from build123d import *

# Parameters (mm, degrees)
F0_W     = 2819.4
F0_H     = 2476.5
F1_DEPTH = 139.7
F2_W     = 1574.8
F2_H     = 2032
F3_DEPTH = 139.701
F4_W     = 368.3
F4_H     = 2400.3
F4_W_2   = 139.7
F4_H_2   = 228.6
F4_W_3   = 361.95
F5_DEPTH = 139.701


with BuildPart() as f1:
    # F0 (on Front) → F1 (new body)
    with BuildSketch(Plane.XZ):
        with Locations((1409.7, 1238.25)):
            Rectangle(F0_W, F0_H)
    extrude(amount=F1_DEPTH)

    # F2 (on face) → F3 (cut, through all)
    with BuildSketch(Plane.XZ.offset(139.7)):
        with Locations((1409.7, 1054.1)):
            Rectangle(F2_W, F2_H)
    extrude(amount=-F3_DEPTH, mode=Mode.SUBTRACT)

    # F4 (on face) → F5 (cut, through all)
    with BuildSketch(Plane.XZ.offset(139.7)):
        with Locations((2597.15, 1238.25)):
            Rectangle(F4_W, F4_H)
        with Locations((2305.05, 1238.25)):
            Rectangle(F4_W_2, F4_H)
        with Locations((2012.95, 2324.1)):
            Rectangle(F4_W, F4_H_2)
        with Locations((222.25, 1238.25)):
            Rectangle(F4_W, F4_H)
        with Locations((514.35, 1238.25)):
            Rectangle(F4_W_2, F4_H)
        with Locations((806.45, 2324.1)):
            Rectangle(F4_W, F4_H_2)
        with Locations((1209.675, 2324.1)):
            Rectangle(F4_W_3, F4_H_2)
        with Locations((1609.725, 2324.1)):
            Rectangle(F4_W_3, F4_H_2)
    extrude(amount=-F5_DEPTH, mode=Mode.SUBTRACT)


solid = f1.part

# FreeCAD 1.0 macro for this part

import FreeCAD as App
import Part
import Sketcher
from FreeCAD import Vector
Q = App.Units.Quantity

doc = App.newDocument("Part")
body = doc.addObject("PartDesign::Body", "Body")

# Sketch on XZ plane
sketch1 = doc.addObject("Sketcher::SketchObject", "Sketch")
body.addObject(sketch1)
sketch1.AttachmentSupport = (doc.XZ_Plane, [""])
sketch1.MapMode = "FlatFace"
sketch1.addGeometry([
    Part.LineSegment(Vector(0, 2476, 0), Vector(0, 0, 0)),
    Part.LineSegment(Vector(0, 0, 0), Vector(2819, 0, 0)),
    Part.LineSegment(Vector(2819, 0, 0), Vector(2819, 2476, 0)),
    Part.LineSegment(Vector(2819, 2476, 0), Vector(0, 2476, 0)),
], False)
sketch1.addConstraint([
    Sketcher.Constraint("Coincident", 0, 2, 1, 1),
    Sketcher.Constraint("Coincident", 1, 2, 2, 1),
    Sketcher.Constraint("Coincident", 2, 2, 3, 1),
    Sketcher.Constraint("Coincident", 3, 2, 0, 1),
    Sketcher.Constraint("Vertical", 0),
    Sketcher.Constraint("Horizontal", 1),
    Sketcher.Constraint("Vertical", 2),
    Sketcher.Constraint("Horizontal", 3),
    Sketcher.Constraint("Coincident", 0, 2, -1, 1),
    Sketcher.Constraint("DistanceX", 1, 1, 1, 2, Q("111 in")),
    Sketcher.Constraint("DistanceY", 0, 2, 0, 1, Q("97.5 in")),
])
pad1 = doc.addObject("PartDesign::Pad", "Pad")
body.addObject(pad1)
pad1.Profile = sketch1
pad1.Length = Q("5.5 in")

# Sketch on XZ plane
sketch2 = doc.addObject("Sketcher::SketchObject", "Sketch001")
body.addObject(sketch2)
sketch2.AttachmentSupport = (doc.XZ_Plane, [""])
sketch2.MapMode = "FlatFace"
sketch2.AttachmentOffset = App.Placement(Vector(0, 0, 5.5 * 25.4), App.Rotation())
sketch2.addGeometry([
    Part.LineSegment(Vector(622, 2070, 0), Vector(622, 38, 0)),
    Part.LineSegment(Vector(622, 38, 0), Vector(2197, 38, 0)),
    Part.LineSegment(Vector(2197, 38, 0), Vector(2197, 2070, 0)),
    Part.LineSegment(Vector(2197, 2070, 0), Vector(622, 2070, 0)),
], False)
sketch2.addConstraint([
    Sketcher.Constraint("Coincident", 0, 2, 1, 1),
    Sketcher.Constraint("Coincident", 1, 2, 2, 1),
    Sketcher.Constraint("Coincident", 2, 2, 3, 1),
    Sketcher.Constraint("Coincident", 3, 2, 0, 1),
    Sketcher.Constraint("Vertical", 0),
    Sketcher.Constraint("Horizontal", 1),
    Sketcher.Constraint("Vertical", 2),
    Sketcher.Constraint("Horizontal", 3),
    Sketcher.Constraint("DistanceX", 1, 1, 1, 2, Q("62 in")),
    Sketcher.Constraint("DistanceY", 0, 2, 0, 1, Q("80 in")),
    Sketcher.Constraint("DistanceX", -1, 1, 0, 2, Q("24.5 in")),
    Sketcher.Constraint("DistanceY", -1, 1, 0, 2, Q("1.5 in")),
])
pocket1 = doc.addObject("PartDesign::Pocket", "Pocket")
body.addObject(pocket1)
pocket1.Profile = sketch2
pocket1.Type = "ThroughAll"

# Sketch on XZ plane
sketch3 = doc.addObject("Sketcher::SketchObject", "Sketch002")
body.addObject(sketch3)
sketch3.AttachmentSupport = (doc.XZ_Plane, [""])
sketch3.MapMode = "FlatFace"
sketch3.AttachmentOffset = App.Placement(Vector(0, 0, 5.5 * 25.4), App.Rotation())
sketch3.addGeometry([
    Part.LineSegment(Vector(2413, 2438, 0), Vector(2413, 38, 0)),  # 0
    Part.LineSegment(Vector(2413, 38, 0), Vector(2781, 38, 0)),  # 1
    Part.LineSegment(Vector(2781, 38, 0), Vector(2781, 2438, 0)),  # 2
    Part.LineSegment(Vector(2781, 2438, 0), Vector(2413, 2438, 0)),  # 3
    Part.LineSegment(Vector(2235, 2438, 0), Vector(2235, 38, 0)),  # 4
    Part.LineSegment(Vector(2235, 38, 0), Vector(2375, 38, 0)),  # 5
    Part.LineSegment(Vector(2375, 38, 0), Vector(2375, 2438, 0)),  # 6
    Part.LineSegment(Vector(2375, 2438, 0), Vector(2235, 2438, 0)),  # 7
    Part.LineSegment(Vector(1829, 2438, 0), Vector(1829, 2210, 0)),  # 8
    Part.LineSegment(Vector(1829, 2210, 0), Vector(2197, 2210, 0)),  # 9
    Part.LineSegment(Vector(2197, 2210, 0), Vector(2197, 2438, 0)),  # 10
    Part.LineSegment(Vector(2197, 2438, 0), Vector(1829, 2438, 0)),  # 11
    Part.LineSegment(Vector(38, 2438, 0), Vector(38, 38, 0)),  # 12
    Part.LineSegment(Vector(38, 38, 0), Vector(406, 38, 0)),  # 13
    Part.LineSegment(Vector(406, 38, 0), Vector(406, 2438, 0)),  # 14
    Part.LineSegment(Vector(406, 2438, 0), Vector(38, 2438, 0)),  # 15
    Part.LineSegment(Vector(444, 2438, 0), Vector(444, 38, 0)),  # 16
    Part.LineSegment(Vector(444, 38, 0), Vector(584, 38, 0)),  # 17
    Part.LineSegment(Vector(584, 38, 0), Vector(584, 2438, 0)),  # 18
    Part.LineSegment(Vector(584, 2438, 0), Vector(444, 2438, 0)),  # 19
    Part.LineSegment(Vector(622, 2438, 0), Vector(622, 2210, 0)),  # 20
    Part.LineSegment(Vector(622, 2210, 0), Vector(991, 2210, 0)),  # 21
    Part.LineSegment(Vector(991, 2210, 0), Vector(991, 2438, 0)),  # 22
    Part.LineSegment(Vector(991, 2438, 0), Vector(622, 2438, 0)),  # 23
    Part.LineSegment(Vector(1029, 2438, 0), Vector(1029, 2210, 0)),  # 24
    Part.LineSegment(Vector(1029, 2210, 0), Vector(1391, 2210, 0)),  # 25
    Part.LineSegment(Vector(1391, 2210, 0), Vector(1391, 2438, 0)),  # 26
    Part.LineSegment(Vector(1391, 2438, 0), Vector(1029, 2438, 0)),  # 27
    Part.LineSegment(Vector(1429, 2438, 0), Vector(1429, 2210, 0)),  # 28
    Part.LineSegment(Vector(1429, 2210, 0), Vector(1791, 2210, 0)),  # 29
    Part.LineSegment(Vector(1791, 2210, 0), Vector(1791, 2438, 0)),  # 30
    Part.LineSegment(Vector(1791, 2438, 0), Vector(1429, 2438, 0)),  # 31
], False)
sketch3.addConstraint([
    Sketcher.Constraint("Coincident", 0, 2, 1, 1),
    Sketcher.Constraint("Coincident", 1, 2, 2, 1),
    Sketcher.Constraint("Coincident", 2, 2, 3, 1),
    Sketcher.Constraint("Coincident", 3, 2, 0, 1),
    Sketcher.Constraint("Coincident", 4, 2, 5, 1),
    Sketcher.Constraint("Coincident", 5, 2, 6, 1),
    Sketcher.Constraint("Coincident", 6, 2, 7, 1),
    Sketcher.Constraint("Coincident", 7, 2, 4, 1),
    Sketcher.Constraint("Coincident", 8, 2, 9, 1),
    Sketcher.Constraint("Coincident", 9, 2, 10, 1),
    Sketcher.Constraint("Coincident", 10, 2, 11, 1),
    Sketcher.Constraint("Coincident", 11, 2, 8, 1),
    Sketcher.Constraint("Coincident", 12, 2, 13, 1),
    Sketcher.Constraint("Coincident", 13, 2, 14, 1),
    Sketcher.Constraint("Coincident", 14, 2, 15, 1),
    Sketcher.Constraint("Coincident", 15, 2, 12, 1),
    Sketcher.Constraint("Coincident", 16, 2, 17, 1),
    Sketcher.Constraint("Coincident", 17, 2, 18, 1),
    Sketcher.Constraint("Coincident", 18, 2, 19, 1),
    Sketcher.Constraint("Coincident", 19, 2, 16, 1),
    Sketcher.Constraint("Coincident", 20, 2, 21, 1),
    Sketcher.Constraint("Coincident", 21, 2, 22, 1),
    Sketcher.Constraint("Coincident", 22, 2, 23, 1),
    Sketcher.Constraint("Coincident", 23, 2, 20, 1),
    Sketcher.Constraint("Coincident", 24, 2, 25, 1),
    Sketcher.Constraint("Coincident", 25, 2, 26, 1),
    Sketcher.Constraint("Coincident", 26, 2, 27, 1),
    Sketcher.Constraint("Coincident", 27, 2, 24, 1),
    Sketcher.Constraint("Coincident", 28, 2, 29, 1),
    Sketcher.Constraint("Coincident", 29, 2, 30, 1),
    Sketcher.Constraint("Coincident", 30, 2, 31, 1),
    Sketcher.Constraint("Coincident", 31, 2, 28, 1),
    Sketcher.Constraint("Vertical", 0),
    Sketcher.Constraint("Horizontal", 1),
    Sketcher.Constraint("Vertical", 2),
    Sketcher.Constraint("Horizontal", 3),
    Sketcher.Constraint("Vertical", 4),
    Sketcher.Constraint("Horizontal", 5),
    Sketcher.Constraint("Vertical", 6),
    Sketcher.Constraint("Horizontal", 7),
    Sketcher.Constraint("Vertical", 8),
    Sketcher.Constraint("Horizontal", 9),
    Sketcher.Constraint("Vertical", 10),
    Sketcher.Constraint("Horizontal", 11),
    Sketcher.Constraint("Vertical", 12),
    Sketcher.Constraint("Horizontal", 13),
    Sketcher.Constraint("Vertical", 14),
    Sketcher.Constraint("Horizontal", 15),
    Sketcher.Constraint("Vertical", 16),
    Sketcher.Constraint("Horizontal", 17),
    Sketcher.Constraint("Vertical", 18),
    Sketcher.Constraint("Horizontal", 19),
    Sketcher.Constraint("Vertical", 20),
    Sketcher.Constraint("Horizontal", 21),
    Sketcher.Constraint("Vertical", 22),
    Sketcher.Constraint("Horizontal", 23),
    Sketcher.Constraint("Vertical", 24),
    Sketcher.Constraint("Horizontal", 25),
    Sketcher.Constraint("Vertical", 26),
    Sketcher.Constraint("Horizontal", 27),
    Sketcher.Constraint("Vertical", 28),
    Sketcher.Constraint("Horizontal", 29),
    Sketcher.Constraint("Vertical", 30),
    Sketcher.Constraint("Horizontal", 31),
    Sketcher.Constraint("Horizontal", 1, 2, 4, 2),
    Sketcher.Constraint("Horizontal", 3, 2, 6, 2),
    Sketcher.Constraint("Horizontal", 7, 2, 10, 2),
    Sketcher.Constraint("Horizontal", 5, 2, 12, 2),
    Sketcher.Constraint("Horizontal", 11, 2, 14, 2),
    Sketcher.Constraint("Horizontal", 13, 2, 16, 2),
    Sketcher.Constraint("Horizontal", 15, 2, 18, 2),
    Sketcher.Constraint("Horizontal", 9, 2, 20, 2),
    Sketcher.Constraint("Horizontal", 19, 2, 22, 2),
    Sketcher.Constraint("Horizontal", 21, 2, 24, 2),
    Sketcher.Constraint("Horizontal", 23, 2, 26, 2),
    Sketcher.Constraint("Horizontal", 25, 2, 28, 2),
    Sketcher.Constraint("Horizontal", 27, 2, 30, 2),
    Sketcher.Constraint("Equal", 3, 9),
    Sketcher.Constraint("Equal", 11, 13),
    Sketcher.Constraint("Equal", 7, 17),
    Sketcher.Constraint("Equal", 15, 21),
    Sketcher.Constraint("Equal", 27, 29),
    Sketcher.Constraint("DistanceY", 8, 2, 8, 1, Q("9 in")),
    Sketcher.Constraint("DistanceX", 1, 1, 1, 2, Q("14.5 in")),
    Sketcher.Constraint("DistanceX", 5, 1, 5, 2, Q("5.5 in")),
    Sketcher.Constraint("DistanceY", 0, 2, 0, 1, Q("94.5 in")),
    Sketcher.Constraint("DistanceX", -1, 1, 0, 2, Q("95 in")),
    Sketcher.Constraint("DistanceY", -1, 1, 2, 2, Q("96 in")),
    Sketcher.Constraint("DistanceX", -1, 1, 4, 2, Q("88 in")),
    Sketcher.Constraint("DistanceX", -1, 1, 8, 2, Q("72 in")),
    Sketcher.Constraint("DistanceX", -1, 1, 13, 2, Q("16 in")),
    Sketcher.Constraint("DistanceX", -1, 1, 17, 2, Q("23 in")),
    Sketcher.Constraint("DistanceX", -1, 1, 21, 2, Q("39 in")),
    Sketcher.Constraint("DistanceX", 20, 2, 24, 2, Q("16 in")),
    Sketcher.Constraint("DistanceX", 29, 2, 9, 2, Q("16 in")),
    Sketcher.Constraint("DistanceX", 25, 1, 25, 2, Q("14.25 in")),
])
pocket2 = doc.addObject("PartDesign::Pocket", "Pocket001")
body.addObject(pocket2)
pocket2.Profile = sketch3
pocket2.Type = "ThroughAll"

doc.recompute()
